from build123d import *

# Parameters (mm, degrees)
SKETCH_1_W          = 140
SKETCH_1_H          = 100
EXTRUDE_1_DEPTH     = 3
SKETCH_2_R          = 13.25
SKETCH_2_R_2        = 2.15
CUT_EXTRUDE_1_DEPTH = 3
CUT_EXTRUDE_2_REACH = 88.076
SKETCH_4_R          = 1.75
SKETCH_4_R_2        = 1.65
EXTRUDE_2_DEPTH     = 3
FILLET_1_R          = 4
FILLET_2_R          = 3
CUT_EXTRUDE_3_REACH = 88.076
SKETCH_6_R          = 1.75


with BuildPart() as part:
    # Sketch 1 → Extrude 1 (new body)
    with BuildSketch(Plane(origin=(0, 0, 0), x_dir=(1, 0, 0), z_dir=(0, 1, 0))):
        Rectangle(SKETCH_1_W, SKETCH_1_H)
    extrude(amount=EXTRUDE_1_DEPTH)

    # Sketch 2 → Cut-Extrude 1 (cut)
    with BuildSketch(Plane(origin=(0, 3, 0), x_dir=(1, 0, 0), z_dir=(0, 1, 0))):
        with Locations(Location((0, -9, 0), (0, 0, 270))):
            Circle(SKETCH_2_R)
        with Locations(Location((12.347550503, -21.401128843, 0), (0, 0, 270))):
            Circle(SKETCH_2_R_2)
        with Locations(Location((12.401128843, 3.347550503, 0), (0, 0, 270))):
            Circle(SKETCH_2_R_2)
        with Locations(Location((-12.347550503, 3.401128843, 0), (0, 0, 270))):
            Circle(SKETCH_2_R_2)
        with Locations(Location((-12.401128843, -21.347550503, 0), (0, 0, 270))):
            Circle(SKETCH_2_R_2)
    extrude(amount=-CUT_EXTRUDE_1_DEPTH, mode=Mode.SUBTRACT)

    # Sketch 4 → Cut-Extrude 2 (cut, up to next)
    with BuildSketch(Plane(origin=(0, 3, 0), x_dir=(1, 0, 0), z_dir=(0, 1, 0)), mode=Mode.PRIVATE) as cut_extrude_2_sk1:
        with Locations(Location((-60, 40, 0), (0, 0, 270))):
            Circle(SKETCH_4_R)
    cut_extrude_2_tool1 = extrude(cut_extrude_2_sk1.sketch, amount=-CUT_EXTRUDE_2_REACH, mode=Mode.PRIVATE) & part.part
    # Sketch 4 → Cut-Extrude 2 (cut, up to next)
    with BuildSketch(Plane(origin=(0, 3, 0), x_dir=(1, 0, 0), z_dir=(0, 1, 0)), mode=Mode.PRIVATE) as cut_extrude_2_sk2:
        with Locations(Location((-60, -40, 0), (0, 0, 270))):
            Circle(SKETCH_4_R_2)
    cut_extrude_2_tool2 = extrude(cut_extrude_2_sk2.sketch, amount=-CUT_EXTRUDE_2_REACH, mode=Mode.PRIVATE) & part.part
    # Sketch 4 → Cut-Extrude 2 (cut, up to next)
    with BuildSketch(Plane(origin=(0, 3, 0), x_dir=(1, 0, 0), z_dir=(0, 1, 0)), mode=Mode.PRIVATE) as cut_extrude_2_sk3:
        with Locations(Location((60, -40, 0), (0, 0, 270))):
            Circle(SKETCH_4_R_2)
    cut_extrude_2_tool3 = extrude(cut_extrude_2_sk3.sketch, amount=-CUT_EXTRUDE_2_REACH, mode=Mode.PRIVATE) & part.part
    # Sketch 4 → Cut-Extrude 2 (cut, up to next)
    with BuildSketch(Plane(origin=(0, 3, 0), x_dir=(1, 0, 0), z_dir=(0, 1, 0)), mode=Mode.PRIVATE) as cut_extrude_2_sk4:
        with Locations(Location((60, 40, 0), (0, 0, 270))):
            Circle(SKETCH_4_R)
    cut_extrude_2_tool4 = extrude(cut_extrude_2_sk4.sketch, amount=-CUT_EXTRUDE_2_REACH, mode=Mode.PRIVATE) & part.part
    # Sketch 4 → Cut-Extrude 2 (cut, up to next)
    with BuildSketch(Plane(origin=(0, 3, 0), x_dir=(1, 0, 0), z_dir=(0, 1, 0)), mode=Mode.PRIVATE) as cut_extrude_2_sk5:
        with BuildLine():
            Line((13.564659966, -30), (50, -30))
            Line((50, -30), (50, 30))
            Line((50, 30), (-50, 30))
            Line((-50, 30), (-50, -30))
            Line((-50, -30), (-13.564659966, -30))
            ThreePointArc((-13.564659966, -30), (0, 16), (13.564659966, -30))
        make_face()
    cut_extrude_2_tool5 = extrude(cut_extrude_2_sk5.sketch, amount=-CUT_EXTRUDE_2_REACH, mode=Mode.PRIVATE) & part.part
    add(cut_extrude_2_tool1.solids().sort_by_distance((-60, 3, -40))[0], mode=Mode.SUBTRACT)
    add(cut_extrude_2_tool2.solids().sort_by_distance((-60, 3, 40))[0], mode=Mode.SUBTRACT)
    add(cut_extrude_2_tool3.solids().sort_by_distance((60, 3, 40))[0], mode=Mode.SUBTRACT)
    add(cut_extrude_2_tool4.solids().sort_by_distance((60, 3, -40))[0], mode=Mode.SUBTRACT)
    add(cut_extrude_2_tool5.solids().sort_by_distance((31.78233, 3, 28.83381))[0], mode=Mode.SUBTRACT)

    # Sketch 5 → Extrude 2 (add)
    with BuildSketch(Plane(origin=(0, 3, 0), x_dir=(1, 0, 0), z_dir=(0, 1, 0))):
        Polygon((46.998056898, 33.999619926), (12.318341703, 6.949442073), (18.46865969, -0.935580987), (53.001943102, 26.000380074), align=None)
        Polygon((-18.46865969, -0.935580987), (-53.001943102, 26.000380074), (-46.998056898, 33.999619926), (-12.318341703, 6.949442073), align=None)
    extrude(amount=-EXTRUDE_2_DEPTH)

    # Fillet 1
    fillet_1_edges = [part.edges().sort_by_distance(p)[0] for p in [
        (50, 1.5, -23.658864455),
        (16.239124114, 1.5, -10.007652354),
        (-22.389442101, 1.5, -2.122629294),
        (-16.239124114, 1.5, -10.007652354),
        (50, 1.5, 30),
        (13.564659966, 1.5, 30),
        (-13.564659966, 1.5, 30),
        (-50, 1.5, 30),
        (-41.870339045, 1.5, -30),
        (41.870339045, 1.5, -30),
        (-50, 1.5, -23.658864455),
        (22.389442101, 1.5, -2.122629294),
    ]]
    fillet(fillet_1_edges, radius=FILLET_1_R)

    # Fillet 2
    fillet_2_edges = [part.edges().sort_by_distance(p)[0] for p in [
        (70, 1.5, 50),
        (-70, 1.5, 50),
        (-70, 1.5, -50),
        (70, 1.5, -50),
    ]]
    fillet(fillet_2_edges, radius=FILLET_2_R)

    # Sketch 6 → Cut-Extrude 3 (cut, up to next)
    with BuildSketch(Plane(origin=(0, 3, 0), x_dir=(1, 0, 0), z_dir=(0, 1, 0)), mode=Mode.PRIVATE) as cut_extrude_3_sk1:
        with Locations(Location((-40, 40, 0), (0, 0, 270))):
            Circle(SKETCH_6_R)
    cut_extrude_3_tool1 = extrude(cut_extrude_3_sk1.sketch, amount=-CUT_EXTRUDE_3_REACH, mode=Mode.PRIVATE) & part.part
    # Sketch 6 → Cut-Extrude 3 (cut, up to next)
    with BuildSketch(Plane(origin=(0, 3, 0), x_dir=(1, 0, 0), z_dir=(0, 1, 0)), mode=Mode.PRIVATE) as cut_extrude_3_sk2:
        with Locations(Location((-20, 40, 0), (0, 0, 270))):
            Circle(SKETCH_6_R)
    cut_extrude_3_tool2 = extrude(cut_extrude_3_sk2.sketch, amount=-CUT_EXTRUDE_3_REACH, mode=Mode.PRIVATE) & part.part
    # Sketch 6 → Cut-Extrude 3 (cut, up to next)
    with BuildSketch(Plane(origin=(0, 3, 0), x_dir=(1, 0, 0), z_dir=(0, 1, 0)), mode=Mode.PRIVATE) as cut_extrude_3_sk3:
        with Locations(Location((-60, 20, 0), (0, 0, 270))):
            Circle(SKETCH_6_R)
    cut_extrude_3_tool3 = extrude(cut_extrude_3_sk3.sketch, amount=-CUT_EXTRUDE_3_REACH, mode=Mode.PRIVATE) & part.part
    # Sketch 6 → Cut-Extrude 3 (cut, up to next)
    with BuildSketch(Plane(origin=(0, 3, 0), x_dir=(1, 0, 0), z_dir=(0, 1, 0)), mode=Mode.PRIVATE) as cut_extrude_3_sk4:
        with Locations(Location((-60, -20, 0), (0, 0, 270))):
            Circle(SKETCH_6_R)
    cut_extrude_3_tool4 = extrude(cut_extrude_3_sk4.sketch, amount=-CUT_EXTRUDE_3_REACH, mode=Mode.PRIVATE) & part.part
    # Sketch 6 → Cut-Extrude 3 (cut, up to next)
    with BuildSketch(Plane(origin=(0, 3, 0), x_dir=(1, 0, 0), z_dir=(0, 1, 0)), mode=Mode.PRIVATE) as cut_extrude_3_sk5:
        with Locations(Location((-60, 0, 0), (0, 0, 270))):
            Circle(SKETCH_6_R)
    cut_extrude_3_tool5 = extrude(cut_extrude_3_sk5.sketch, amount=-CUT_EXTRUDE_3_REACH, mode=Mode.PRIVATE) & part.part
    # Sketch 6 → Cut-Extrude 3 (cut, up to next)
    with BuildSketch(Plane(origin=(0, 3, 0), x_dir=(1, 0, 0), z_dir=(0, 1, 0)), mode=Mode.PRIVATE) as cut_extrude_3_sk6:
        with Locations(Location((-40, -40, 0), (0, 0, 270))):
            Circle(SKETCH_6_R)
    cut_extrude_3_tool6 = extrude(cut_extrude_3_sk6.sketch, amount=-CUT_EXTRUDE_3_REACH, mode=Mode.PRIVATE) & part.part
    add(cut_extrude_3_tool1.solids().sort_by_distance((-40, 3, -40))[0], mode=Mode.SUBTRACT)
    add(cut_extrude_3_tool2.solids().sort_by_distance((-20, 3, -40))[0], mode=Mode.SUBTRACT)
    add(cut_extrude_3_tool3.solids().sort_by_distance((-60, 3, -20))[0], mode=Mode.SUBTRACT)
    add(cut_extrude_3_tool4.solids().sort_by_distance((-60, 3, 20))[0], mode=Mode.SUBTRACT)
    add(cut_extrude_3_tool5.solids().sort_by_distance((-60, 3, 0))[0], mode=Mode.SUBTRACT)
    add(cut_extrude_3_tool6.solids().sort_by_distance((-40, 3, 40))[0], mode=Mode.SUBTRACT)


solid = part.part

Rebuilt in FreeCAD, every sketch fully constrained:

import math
import FreeCAD as App
import Part
import Sketcher

V = App.Vector
Q = App.Units.Quantity


def edges_at(feature, points):
    """Names of the edges that pass closest to the given points."""
    edges = feature.Shape.Edges
    near = lambda p: min(range(len(edges)), key=lambda i: edges[i].distToShape(Part.Vertex(*p))[0])
    return sorted({f"Edge{near(p) + 1}" for p in points})


def add_polygon(sketch, points):
    """Adds a closed chain of lines whose ends are joined by coincident constraints."""
    first, n = sketch.GeometryCount, len(points)
    for a, b in zip(points, points[1:] + points[:1]):
        sketch.addGeometry(Part.LineSegment(App.Vector(*a, 0), App.Vector(*b, 0)), False)
    for i in range(n):
        sketch.addConstraint(Sketcher.Constraint("Coincident", first + i, 2, first + (i + 1) % n, 1))

doc = App.newDocument("Part")
body = doc.addObject("PartDesign::Body", "Body")

# Sketch on XZ plane
sketch1 = body.newObject("Sketcher::SketchObject", "Sketch")
sketch1.AttachmentSupport = (doc.getObject("XZ_Plane"), [""])
sketch1.MapMode = "FlatFace"
add_polygon(sketch1, [(-70, -50), (-70, 50), (70, 50), (70, -50)])  # lines 0-3
sketch1.addConstraint([
    Sketcher.Constraint("Vertical", 0),
    Sketcher.Constraint("Horizontal", 1),
    Sketcher.Constraint("Vertical", 2),
    Sketcher.Constraint("Horizontal", 3),
    Sketcher.Constraint("Symmetric", 0, 2, 2, 2, -1, 1),
    Sketcher.Constraint("DistanceX", 1, 1, 1, 2, Q("140 mm")),
    Sketcher.Constraint("DistanceY", 0, 1, 0, 2, Q("100 mm")),
])
pad1 = body.newObject("PartDesign::Pad", "Pad")
pad1.Profile = sketch1
pad1.Length = 3
pad1.Reversed = True

# Sketch on XZ plane
sketch2 = body.newObject("Sketcher::SketchObject", "Sketch001")
sketch2.AttachmentSupport = (doc.getObject("XZ_Plane"), [""])
sketch2.MapMode = "FlatFace"
sketch2.AttachmentOffset = App.Placement(V(0, 0, -3), App.Rotation())
sketch2.addGeometry([
    Part.Circle(V(0, 9, 0), V(0, 0, 1), 13.25),  # 0
    Part.Circle(V(12.347551, 21.401129, 0), V(0, 0, 1), 2.15),  # 1
    Part.Circle(V(12.401129, -3.347551, 0), V(0, 0, 1), 2.15),  # 2
    Part.Circle(V(-12.347551, -3.401129, 0), V(0, 0, 1), 2.15),  # 3
    Part.Circle(V(-12.401129, 21.347551, 0), V(0, 0, 1), 2.15),  # 4
], False)
sketch2.addConstraint([
    Sketcher.Constraint("Equal", 1, 2),
    Sketcher.Constraint("Equal", 2, 3),
    Sketcher.Constraint("Equal", 3, 4),
    Sketcher.Constraint("PointOnObject", 0, 3, -2),
    Sketcher.Constraint("Diameter", 0, Q("26.5 mm")),
    Sketcher.Constraint("Diameter", 1, Q("4.3 mm")),
    Sketcher.Constraint("DistanceY", -1, 1, 0, 3, Q("9 mm")),
    Sketcher.Constraint("DistanceX", 3, 3, 1, 3, Q("24.695101 mm")),
    Sketcher.Constraint("DistanceY", 2, 3, 4, 3, Q("24.695101 mm")),
    Sketcher.Constraint("DistanceX", -1, 1, 1, 3, Q("12.347551 mm")),
    Sketcher.Constraint("DistanceY", -1, 1, 1, 3, Q("21.401129 mm")),
    Sketcher.Constraint("DistanceX", -1, 1, 2, 3, Q("12.401129 mm")),
    Sketcher.Constraint("DistanceY", 2, 3, -1, 1, Q("3.347551 mm")),
    Sketcher.Constraint("DistanceY", 3, 3, -1, 1, Q("3.401129 mm")),
    Sketcher.Constraint("DistanceX", 4, 3, -1, 1, Q("12.401129 mm")),
])
pocket1 = body.newObject("PartDesign::Pocket", "Pocket")
pocket1.Profile = sketch2
pocket1.Length = 3
pocket1.Reversed = True

# Sketch on XZ plane
sketch3 = body.newObject("Sketcher::SketchObject", "Sketch002")
sketch3.AttachmentSupport = (doc.getObject("XZ_Plane"), [""])
sketch3.MapMode = "FlatFace"
sketch3.AttachmentOffset = App.Placement(V(0, 0, -3), App.Rotation())
sketch3.addGeometry(Part.Circle(V(-60, -40, 0), V(0, 0, 1), 1.75), False)
sketch3.addConstraint([
    Sketcher.Constraint("Diameter", 0, Q("3.5 mm")),
    Sketcher.Constraint("DistanceX", 0, 3, -1, 1, Q("60 mm")),
    Sketcher.Constraint("DistanceY", 0, 3, -1, 1, Q("40 mm")),
])
pocket2 = body.newObject("PartDesign::Pocket", "Pocket001")
pocket2.Profile = sketch3
pocket2.Type = "UpToFirst"
pocket2.Reversed = True

# Sketch on XZ plane
sketch4 = body.newObject("Sketcher::SketchObject", "Sketch003")
sketch4.AttachmentSupport = (doc.getObject("XZ_Plane"), [""])
sketch4.MapMode = "FlatFace"
sketch4.AttachmentOffset = App.Placement(V(0, 0, -3), App.Rotation())
sketch4.addGeometry(Part.Circle(V(-60, 40, 0), V(0, 0, 1), 1.65), False)
sketch4.addConstraint([
    Sketcher.Constraint("Diameter", 0, Q("3.3 mm")),
    Sketcher.Constraint("DistanceX", 0, 3, -1, 1, Q("60 mm")),
    Sketcher.Constraint("DistanceY", -1, 1, 0, 3, Q("40 mm")),
])
pocket3 = body.newObject("PartDesign::Pocket", "Pocket002")
pocket3.Profile = sketch4
pocket3.Type = "UpToFirst"
pocket3.Reversed = True

# Sketch on XZ plane
sketch5 = body.newObject("Sketcher::SketchObject", "Sketch004")
sketch5.AttachmentSupport = (doc.getObject("XZ_Plane"), [""])
sketch5.MapMode = "FlatFace"
sketch5.AttachmentOffset = App.Placement(V(0, 0, -3), App.Rotation())
sketch5.addGeometry(Part.Circle(V(60, 40, 0), V(0, 0, 1), 1.65), False)
sketch5.addConstraint([
    Sketcher.Constraint("Diameter", 0, Q("3.3 mm")),
    Sketcher.Constraint("DistanceX", -1, 1, 0, 3, Q("60 mm")),
    Sketcher.Constraint("DistanceY", -1, 1, 0, 3, Q("40 mm")),
])
pocket4 = body.newObject("PartDesign::Pocket", "Pocket003")
pocket4.Profile = sketch5
pocket4.Type = "UpToFirst"
pocket4.Reversed = True

# Sketch on XZ plane
sketch6 = body.newObject("Sketcher::SketchObject", "Sketch005")
sketch6.AttachmentSupport = (doc.getObject("XZ_Plane"), [""])
sketch6.MapMode = "FlatFace"
sketch6.AttachmentOffset = App.Placement(V(0, 0, -3), App.Rotation())
sketch6.addGeometry(Part.Circle(V(60, -40, 0), V(0, 0, 1), 1.75), False)
sketch6.addConstraint([
    Sketcher.Constraint("Diameter", 0, Q("3.5 mm")),
    Sketcher.Constraint("DistanceX", -1, 1, 0, 3, Q("60 mm")),
    Sketcher.Constraint("DistanceY", 0, 3, -1, 1, Q("40 mm")),
])
pocket5 = body.newObject("PartDesign::Pocket", "Pocket004")
pocket5.Profile = sketch6
pocket5.Type = "UpToFirst"
pocket5.Reversed = True

# Sketch on XZ plane
sketch7 = body.newObject("Sketcher::SketchObject", "Sketch006")
sketch7.AttachmentSupport = (doc.getObject("XZ_Plane"), [""])
sketch7.MapMode = "FlatFace"
sketch7.AttachmentOffset = App.Placement(V(0, 0, -3), App.Rotation())
sketch7.addGeometry([
    Part.LineSegment(V(13.56466, 30, 0), V(50, 30, 0)),  # 0
    Part.LineSegment(V(50, 30, 0), V(50, -30, 0)),  # 1
    Part.LineSegment(V(50, -30, 0), V(-50, -30, 0)),  # 2
    Part.LineSegment(V(-50, -30, 0), V(-50, 30, 0)),  # 3
    Part.LineSegment(V(-50, 30, 0), V(-13.56466, 30, 0)),  # 4
    Part.ArcOfCircle(Part.Circle(V(0, 9, 0), V(0, 0, 1), 25), math.radians(122.85988), math.radians(417.14012)),  # 5
], False)
sketch7.addConstraint([
    Sketcher.Constraint("Coincident", 0, 2, 1, 1),
    Sketcher.Constraint("Coincident", 1, 2, 2, 1),
    Sketcher.Constraint("Coincident", 2, 2, 3, 1),
    Sketcher.Constraint("Coincident", 3, 2, 4, 1),
    Sketcher.Constraint("Coincident", 4, 2, 5, 1),
    Sketcher.Constraint("Coincident", 5, 2, 0, 1),
    Sketcher.Constraint("Horizontal", 0),
    Sketcher.Constraint("Vertical", 1),
    Sketcher.Constraint("Horizontal", 2),
    Sketcher.Constraint("Vertical", 3),
    Sketcher.Constraint("Horizontal", 4),
    Sketcher.Constraint("Symmetric", 0, 2, 2, 2, -1, 1),
    Sketcher.Constraint("Symmetric", 4, 2, 5, 2, -2),
    Sketcher.Constraint("Radius", 5, Q("25 mm")),
    Sketcher.Constraint("DistanceX", 2, 2, 2, 1, Q("100 mm")),
    Sketcher.Constraint("DistanceY", 1, 2, 1, 1, Q("60 mm")),
    Sketcher.Constraint("DistanceY", -1, 1, 5, 3, Q("9 mm")),
])
pocket6 = body.newObject("PartDesign::Pocket", "Pocket005")
pocket6.Profile = sketch7
pocket6.Length = 3
pocket6.Reversed = True

# Sketch on XZ plane
sketch8 = body.newObject("Sketcher::SketchObject", "Sketch007")
sketch8.AttachmentSupport = (doc.getObject("XZ_Plane"), [""])
sketch8.MapMode = "FlatFace"
sketch8.AttachmentOffset = App.Placement(V(0, 0, -3), App.Rotation())
add_polygon(sketch8, [(46.998057, -33.99962), (12.318342, -6.949442), (18.46866, 0.935581), (53.001943, -26.00038)])  # lines 0-3
add_polygon(sketch8, [(-53.001943, -26.00038), (-18.46866, 0.935581), (-12.318342, -6.949442), (-46.998057, -33.99962)])  # lines 4-7
sketch8.addConstraint([
    Sketcher.Constraint("Symmetric", 1, 2, 4, 2, -2),
    Sketcher.Constraint("Symmetric", 0, 2, 5, 2, -2),
    Sketcher.Constraint("Symmetric", 3, 2, 6, 2, -2),
    Sketcher.Constraint("Symmetric", 2, 2, 7, 2, -2),
    Sketcher.Constraint("Perpendicular", 0, 1),
    Sketcher.Constraint("Perpendicular", 1, 2),
    Sketcher.Constraint("Distance", 1, Q("10 mm")),
    Sketcher.Constraint("DistanceX", 4, 2, 0, 2, Q("30.787001 mm")),
    Sketcher.Constraint("DistanceX", 0, 2, 2, 2, Q("40.683601 mm")),
    Sketcher.Constraint("DistanceY", 3, 2, 1, 2, Q("34.935201 mm")),
    Sketcher.Constraint("DistanceX", 5, 2, 3, 2, Q("59.316399 mm")),
    Sketcher.Constraint("DistanceY", -1, 1, 1, 2, Q("0.935581 mm")),
])
pad2 = body.newObject("PartDesign::Pad", "Pad001")
pad2.Profile = sketch8
pad2.Length = 3
doc.recompute()

fillet = body.newObject("PartDesign::Fillet", "Fillet")
fillet.Base = (pad2, edges_at(pad2, [
    (50, 1.5, -23.659),
    (16.239, 1.5, -10.008),
    (-22.389, 1.5, -2.123),
    (-16.239, 1.5, -10.008),
    (50, 1.5, 30),
    (13.565, 1.5, 30),
    (-13.565, 1.5, 30),
    (-50, 1.5, 30),
    (-41.87, 1.5, -30),
    (41.87, 1.5, -30),
    (-50, 1.5, -23.659),
    (22.389, 1.5, -2.123),
]))
fillet.Radius = 4
doc.recompute()

fillet2 = body.newObject("PartDesign::Fillet", "Fillet001")
fillet2.Base = (fillet, edges_at(fillet, [
    (70, 1.5, 50),
    (-70, 1.5, 50),
    (-70, 1.5, -50),
    (70, 1.5, -50),
]))
fillet2.Radius = 3

# Sketch on XZ plane
sketch9 = body.newObject("Sketcher::SketchObject", "Sketch008")
sketch9.AttachmentSupport = (doc.getObject("XZ_Plane"), [""])
sketch9.MapMode = "FlatFace"
sketch9.AttachmentOffset = App.Placement(V(0, 0, -3), App.Rotation())
sketch9.addGeometry(Part.Circle(V(-40, -40, 0), V(0, 0, 1), 1.75), False)
sketch9.addConstraint([
    Sketcher.Constraint("Diameter", 0, Q("3.5 mm")),
    Sketcher.Constraint("DistanceX", 0, 3, -1, 1, Q("40 mm")),
    Sketcher.Constraint("DistanceY", 0, 3, -1, 1, Q("40 mm")),
])
pocket7 = body.newObject("PartDesign::Pocket", "Pocket006")
pocket7.Profile = sketch9
pocket7.Type = "UpToFirst"
pocket7.Reversed = True

# Sketch on XZ plane
sketch10 = body.newObject("Sketcher::SketchObject", "Sketch009")
sketch10.AttachmentSupport = (doc.getObject("XZ_Plane"), [""])
sketch10.MapMode = "FlatFace"
sketch10.AttachmentOffset = App.Placement(V(0, 0, -3), App.Rotation())
sketch10.addGeometry(Part.Circle(V(-20, -40, 0), V(0, 0, 1), 1.75), False)
sketch10.addConstraint([
    Sketcher.Constraint("Diameter", 0, Q("3.5 mm")),
    Sketcher.Constraint("DistanceX", 0, 3, -1, 1, Q("20 mm")),
    Sketcher.Constraint("DistanceY", 0, 3, -1, 1, Q("40 mm")),
])
pocket8 = body.newObject("PartDesign::Pocket", "Pocket007")
pocket8.Profile = sketch10
pocket8.Type = "UpToFirst"
pocket8.Reversed = True

# Sketch on XZ plane
sketch11 = body.newObject("Sketcher::SketchObject", "Sketch010")
sketch11.AttachmentSupport = (doc.getObject("XZ_Plane"), [""])
sketch11.MapMode = "FlatFace"
sketch11.AttachmentOffset = App.Placement(V(0, 0, -3), App.Rotation())
sketch11.addGeometry(Part.Circle(V(-60, -20, 0), V(0, 0, 1), 1.75), False)
sketch11.addConstraint([
    Sketcher.Constraint("Diameter", 0, Q("3.5 mm")),
    Sketcher.Constraint("DistanceX", 0, 3, -1, 1, Q("60 mm")),
    Sketcher.Constraint("DistanceY", 0, 3, -1, 1, Q("20 mm")),
])
pocket9 = body.newObject("PartDesign::Pocket", "Pocket008")
pocket9.Profile = sketch11
pocket9.Type = "UpToFirst"
pocket9.Reversed = True

# Sketch on XZ plane
sketch12 = body.newObject("Sketcher::SketchObject", "Sketch011")
sketch12.AttachmentSupport = (doc.getObject("XZ_Plane"), [""])
sketch12.MapMode = "FlatFace"
sketch12.AttachmentOffset = App.Placement(V(0, 0, -3), App.Rotation())
sketch12.addGeometry(Part.Circle(V(-60, 20, 0), V(0, 0, 1), 1.75), False)
sketch12.addConstraint([
    Sketcher.Constraint("Diameter", 0, Q("3.5 mm")),
    Sketcher.Constraint("DistanceX", 0, 3, -1, 1, Q("60 mm")),
    Sketcher.Constraint("DistanceY", -1, 1, 0, 3, Q("20 mm")),
])
pocket10 = body.newObject("PartDesign::Pocket", "Pocket009")
pocket10.Profile = sketch12
pocket10.Type = "UpToFirst"
pocket10.Reversed = True

# Sketch on XZ plane
sketch13 = body.newObject("Sketcher::SketchObject", "Sketch012")
sketch13.AttachmentSupport = (doc.getObject("XZ_Plane"), [""])
sketch13.MapMode = "FlatFace"
sketch13.AttachmentOffset = App.Placement(V(0, 0, -3), App.Rotation())
sketch13.addGeometry(Part.Circle(V(-60, 0, 0), V(0, 0, 1), 1.75), False)
sketch13.addConstraint([
    Sketcher.Constraint("PointOnObject", 0, 3, -1),
    Sketcher.Constraint("Diameter", 0, Q("3.5 mm")),
    Sketcher.Constraint("DistanceX", 0, 3, -1, 1, Q("60 mm")),
])
pocket11 = body.newObject("PartDesign::Pocket", "Pocket010")
pocket11.Profile = sketch13
pocket11.Type = "UpToFirst"
pocket11.Reversed = True

# Sketch on XZ plane
sketch14 = body.newObject("Sketcher::SketchObject", "Sketch013")
sketch14.AttachmentSupport = (doc.getObject("XZ_Plane"), [""])
sketch14.MapMode = "FlatFace"
sketch14.AttachmentOffset = App.Placement(V(0, 0, -3), App.Rotation())
sketch14.addGeometry(Part.Circle(V(-40, 40, 0), V(0, 0, 1), 1.75), False)
sketch14.addConstraint([
    Sketcher.Constraint("Diameter", 0, Q("3.5 mm")),
    Sketcher.Constraint("DistanceX", 0, 3, -1, 1, Q("40 mm")),
    Sketcher.Constraint("DistanceY", -1, 1, 0, 3, Q("40 mm")),
])
pocket12 = body.newObject("PartDesign::Pocket", "Pocket011")
pocket12.Profile = sketch14
pocket12.Type = "UpToFirst"
pocket12.Reversed = True

doc.recompute()
